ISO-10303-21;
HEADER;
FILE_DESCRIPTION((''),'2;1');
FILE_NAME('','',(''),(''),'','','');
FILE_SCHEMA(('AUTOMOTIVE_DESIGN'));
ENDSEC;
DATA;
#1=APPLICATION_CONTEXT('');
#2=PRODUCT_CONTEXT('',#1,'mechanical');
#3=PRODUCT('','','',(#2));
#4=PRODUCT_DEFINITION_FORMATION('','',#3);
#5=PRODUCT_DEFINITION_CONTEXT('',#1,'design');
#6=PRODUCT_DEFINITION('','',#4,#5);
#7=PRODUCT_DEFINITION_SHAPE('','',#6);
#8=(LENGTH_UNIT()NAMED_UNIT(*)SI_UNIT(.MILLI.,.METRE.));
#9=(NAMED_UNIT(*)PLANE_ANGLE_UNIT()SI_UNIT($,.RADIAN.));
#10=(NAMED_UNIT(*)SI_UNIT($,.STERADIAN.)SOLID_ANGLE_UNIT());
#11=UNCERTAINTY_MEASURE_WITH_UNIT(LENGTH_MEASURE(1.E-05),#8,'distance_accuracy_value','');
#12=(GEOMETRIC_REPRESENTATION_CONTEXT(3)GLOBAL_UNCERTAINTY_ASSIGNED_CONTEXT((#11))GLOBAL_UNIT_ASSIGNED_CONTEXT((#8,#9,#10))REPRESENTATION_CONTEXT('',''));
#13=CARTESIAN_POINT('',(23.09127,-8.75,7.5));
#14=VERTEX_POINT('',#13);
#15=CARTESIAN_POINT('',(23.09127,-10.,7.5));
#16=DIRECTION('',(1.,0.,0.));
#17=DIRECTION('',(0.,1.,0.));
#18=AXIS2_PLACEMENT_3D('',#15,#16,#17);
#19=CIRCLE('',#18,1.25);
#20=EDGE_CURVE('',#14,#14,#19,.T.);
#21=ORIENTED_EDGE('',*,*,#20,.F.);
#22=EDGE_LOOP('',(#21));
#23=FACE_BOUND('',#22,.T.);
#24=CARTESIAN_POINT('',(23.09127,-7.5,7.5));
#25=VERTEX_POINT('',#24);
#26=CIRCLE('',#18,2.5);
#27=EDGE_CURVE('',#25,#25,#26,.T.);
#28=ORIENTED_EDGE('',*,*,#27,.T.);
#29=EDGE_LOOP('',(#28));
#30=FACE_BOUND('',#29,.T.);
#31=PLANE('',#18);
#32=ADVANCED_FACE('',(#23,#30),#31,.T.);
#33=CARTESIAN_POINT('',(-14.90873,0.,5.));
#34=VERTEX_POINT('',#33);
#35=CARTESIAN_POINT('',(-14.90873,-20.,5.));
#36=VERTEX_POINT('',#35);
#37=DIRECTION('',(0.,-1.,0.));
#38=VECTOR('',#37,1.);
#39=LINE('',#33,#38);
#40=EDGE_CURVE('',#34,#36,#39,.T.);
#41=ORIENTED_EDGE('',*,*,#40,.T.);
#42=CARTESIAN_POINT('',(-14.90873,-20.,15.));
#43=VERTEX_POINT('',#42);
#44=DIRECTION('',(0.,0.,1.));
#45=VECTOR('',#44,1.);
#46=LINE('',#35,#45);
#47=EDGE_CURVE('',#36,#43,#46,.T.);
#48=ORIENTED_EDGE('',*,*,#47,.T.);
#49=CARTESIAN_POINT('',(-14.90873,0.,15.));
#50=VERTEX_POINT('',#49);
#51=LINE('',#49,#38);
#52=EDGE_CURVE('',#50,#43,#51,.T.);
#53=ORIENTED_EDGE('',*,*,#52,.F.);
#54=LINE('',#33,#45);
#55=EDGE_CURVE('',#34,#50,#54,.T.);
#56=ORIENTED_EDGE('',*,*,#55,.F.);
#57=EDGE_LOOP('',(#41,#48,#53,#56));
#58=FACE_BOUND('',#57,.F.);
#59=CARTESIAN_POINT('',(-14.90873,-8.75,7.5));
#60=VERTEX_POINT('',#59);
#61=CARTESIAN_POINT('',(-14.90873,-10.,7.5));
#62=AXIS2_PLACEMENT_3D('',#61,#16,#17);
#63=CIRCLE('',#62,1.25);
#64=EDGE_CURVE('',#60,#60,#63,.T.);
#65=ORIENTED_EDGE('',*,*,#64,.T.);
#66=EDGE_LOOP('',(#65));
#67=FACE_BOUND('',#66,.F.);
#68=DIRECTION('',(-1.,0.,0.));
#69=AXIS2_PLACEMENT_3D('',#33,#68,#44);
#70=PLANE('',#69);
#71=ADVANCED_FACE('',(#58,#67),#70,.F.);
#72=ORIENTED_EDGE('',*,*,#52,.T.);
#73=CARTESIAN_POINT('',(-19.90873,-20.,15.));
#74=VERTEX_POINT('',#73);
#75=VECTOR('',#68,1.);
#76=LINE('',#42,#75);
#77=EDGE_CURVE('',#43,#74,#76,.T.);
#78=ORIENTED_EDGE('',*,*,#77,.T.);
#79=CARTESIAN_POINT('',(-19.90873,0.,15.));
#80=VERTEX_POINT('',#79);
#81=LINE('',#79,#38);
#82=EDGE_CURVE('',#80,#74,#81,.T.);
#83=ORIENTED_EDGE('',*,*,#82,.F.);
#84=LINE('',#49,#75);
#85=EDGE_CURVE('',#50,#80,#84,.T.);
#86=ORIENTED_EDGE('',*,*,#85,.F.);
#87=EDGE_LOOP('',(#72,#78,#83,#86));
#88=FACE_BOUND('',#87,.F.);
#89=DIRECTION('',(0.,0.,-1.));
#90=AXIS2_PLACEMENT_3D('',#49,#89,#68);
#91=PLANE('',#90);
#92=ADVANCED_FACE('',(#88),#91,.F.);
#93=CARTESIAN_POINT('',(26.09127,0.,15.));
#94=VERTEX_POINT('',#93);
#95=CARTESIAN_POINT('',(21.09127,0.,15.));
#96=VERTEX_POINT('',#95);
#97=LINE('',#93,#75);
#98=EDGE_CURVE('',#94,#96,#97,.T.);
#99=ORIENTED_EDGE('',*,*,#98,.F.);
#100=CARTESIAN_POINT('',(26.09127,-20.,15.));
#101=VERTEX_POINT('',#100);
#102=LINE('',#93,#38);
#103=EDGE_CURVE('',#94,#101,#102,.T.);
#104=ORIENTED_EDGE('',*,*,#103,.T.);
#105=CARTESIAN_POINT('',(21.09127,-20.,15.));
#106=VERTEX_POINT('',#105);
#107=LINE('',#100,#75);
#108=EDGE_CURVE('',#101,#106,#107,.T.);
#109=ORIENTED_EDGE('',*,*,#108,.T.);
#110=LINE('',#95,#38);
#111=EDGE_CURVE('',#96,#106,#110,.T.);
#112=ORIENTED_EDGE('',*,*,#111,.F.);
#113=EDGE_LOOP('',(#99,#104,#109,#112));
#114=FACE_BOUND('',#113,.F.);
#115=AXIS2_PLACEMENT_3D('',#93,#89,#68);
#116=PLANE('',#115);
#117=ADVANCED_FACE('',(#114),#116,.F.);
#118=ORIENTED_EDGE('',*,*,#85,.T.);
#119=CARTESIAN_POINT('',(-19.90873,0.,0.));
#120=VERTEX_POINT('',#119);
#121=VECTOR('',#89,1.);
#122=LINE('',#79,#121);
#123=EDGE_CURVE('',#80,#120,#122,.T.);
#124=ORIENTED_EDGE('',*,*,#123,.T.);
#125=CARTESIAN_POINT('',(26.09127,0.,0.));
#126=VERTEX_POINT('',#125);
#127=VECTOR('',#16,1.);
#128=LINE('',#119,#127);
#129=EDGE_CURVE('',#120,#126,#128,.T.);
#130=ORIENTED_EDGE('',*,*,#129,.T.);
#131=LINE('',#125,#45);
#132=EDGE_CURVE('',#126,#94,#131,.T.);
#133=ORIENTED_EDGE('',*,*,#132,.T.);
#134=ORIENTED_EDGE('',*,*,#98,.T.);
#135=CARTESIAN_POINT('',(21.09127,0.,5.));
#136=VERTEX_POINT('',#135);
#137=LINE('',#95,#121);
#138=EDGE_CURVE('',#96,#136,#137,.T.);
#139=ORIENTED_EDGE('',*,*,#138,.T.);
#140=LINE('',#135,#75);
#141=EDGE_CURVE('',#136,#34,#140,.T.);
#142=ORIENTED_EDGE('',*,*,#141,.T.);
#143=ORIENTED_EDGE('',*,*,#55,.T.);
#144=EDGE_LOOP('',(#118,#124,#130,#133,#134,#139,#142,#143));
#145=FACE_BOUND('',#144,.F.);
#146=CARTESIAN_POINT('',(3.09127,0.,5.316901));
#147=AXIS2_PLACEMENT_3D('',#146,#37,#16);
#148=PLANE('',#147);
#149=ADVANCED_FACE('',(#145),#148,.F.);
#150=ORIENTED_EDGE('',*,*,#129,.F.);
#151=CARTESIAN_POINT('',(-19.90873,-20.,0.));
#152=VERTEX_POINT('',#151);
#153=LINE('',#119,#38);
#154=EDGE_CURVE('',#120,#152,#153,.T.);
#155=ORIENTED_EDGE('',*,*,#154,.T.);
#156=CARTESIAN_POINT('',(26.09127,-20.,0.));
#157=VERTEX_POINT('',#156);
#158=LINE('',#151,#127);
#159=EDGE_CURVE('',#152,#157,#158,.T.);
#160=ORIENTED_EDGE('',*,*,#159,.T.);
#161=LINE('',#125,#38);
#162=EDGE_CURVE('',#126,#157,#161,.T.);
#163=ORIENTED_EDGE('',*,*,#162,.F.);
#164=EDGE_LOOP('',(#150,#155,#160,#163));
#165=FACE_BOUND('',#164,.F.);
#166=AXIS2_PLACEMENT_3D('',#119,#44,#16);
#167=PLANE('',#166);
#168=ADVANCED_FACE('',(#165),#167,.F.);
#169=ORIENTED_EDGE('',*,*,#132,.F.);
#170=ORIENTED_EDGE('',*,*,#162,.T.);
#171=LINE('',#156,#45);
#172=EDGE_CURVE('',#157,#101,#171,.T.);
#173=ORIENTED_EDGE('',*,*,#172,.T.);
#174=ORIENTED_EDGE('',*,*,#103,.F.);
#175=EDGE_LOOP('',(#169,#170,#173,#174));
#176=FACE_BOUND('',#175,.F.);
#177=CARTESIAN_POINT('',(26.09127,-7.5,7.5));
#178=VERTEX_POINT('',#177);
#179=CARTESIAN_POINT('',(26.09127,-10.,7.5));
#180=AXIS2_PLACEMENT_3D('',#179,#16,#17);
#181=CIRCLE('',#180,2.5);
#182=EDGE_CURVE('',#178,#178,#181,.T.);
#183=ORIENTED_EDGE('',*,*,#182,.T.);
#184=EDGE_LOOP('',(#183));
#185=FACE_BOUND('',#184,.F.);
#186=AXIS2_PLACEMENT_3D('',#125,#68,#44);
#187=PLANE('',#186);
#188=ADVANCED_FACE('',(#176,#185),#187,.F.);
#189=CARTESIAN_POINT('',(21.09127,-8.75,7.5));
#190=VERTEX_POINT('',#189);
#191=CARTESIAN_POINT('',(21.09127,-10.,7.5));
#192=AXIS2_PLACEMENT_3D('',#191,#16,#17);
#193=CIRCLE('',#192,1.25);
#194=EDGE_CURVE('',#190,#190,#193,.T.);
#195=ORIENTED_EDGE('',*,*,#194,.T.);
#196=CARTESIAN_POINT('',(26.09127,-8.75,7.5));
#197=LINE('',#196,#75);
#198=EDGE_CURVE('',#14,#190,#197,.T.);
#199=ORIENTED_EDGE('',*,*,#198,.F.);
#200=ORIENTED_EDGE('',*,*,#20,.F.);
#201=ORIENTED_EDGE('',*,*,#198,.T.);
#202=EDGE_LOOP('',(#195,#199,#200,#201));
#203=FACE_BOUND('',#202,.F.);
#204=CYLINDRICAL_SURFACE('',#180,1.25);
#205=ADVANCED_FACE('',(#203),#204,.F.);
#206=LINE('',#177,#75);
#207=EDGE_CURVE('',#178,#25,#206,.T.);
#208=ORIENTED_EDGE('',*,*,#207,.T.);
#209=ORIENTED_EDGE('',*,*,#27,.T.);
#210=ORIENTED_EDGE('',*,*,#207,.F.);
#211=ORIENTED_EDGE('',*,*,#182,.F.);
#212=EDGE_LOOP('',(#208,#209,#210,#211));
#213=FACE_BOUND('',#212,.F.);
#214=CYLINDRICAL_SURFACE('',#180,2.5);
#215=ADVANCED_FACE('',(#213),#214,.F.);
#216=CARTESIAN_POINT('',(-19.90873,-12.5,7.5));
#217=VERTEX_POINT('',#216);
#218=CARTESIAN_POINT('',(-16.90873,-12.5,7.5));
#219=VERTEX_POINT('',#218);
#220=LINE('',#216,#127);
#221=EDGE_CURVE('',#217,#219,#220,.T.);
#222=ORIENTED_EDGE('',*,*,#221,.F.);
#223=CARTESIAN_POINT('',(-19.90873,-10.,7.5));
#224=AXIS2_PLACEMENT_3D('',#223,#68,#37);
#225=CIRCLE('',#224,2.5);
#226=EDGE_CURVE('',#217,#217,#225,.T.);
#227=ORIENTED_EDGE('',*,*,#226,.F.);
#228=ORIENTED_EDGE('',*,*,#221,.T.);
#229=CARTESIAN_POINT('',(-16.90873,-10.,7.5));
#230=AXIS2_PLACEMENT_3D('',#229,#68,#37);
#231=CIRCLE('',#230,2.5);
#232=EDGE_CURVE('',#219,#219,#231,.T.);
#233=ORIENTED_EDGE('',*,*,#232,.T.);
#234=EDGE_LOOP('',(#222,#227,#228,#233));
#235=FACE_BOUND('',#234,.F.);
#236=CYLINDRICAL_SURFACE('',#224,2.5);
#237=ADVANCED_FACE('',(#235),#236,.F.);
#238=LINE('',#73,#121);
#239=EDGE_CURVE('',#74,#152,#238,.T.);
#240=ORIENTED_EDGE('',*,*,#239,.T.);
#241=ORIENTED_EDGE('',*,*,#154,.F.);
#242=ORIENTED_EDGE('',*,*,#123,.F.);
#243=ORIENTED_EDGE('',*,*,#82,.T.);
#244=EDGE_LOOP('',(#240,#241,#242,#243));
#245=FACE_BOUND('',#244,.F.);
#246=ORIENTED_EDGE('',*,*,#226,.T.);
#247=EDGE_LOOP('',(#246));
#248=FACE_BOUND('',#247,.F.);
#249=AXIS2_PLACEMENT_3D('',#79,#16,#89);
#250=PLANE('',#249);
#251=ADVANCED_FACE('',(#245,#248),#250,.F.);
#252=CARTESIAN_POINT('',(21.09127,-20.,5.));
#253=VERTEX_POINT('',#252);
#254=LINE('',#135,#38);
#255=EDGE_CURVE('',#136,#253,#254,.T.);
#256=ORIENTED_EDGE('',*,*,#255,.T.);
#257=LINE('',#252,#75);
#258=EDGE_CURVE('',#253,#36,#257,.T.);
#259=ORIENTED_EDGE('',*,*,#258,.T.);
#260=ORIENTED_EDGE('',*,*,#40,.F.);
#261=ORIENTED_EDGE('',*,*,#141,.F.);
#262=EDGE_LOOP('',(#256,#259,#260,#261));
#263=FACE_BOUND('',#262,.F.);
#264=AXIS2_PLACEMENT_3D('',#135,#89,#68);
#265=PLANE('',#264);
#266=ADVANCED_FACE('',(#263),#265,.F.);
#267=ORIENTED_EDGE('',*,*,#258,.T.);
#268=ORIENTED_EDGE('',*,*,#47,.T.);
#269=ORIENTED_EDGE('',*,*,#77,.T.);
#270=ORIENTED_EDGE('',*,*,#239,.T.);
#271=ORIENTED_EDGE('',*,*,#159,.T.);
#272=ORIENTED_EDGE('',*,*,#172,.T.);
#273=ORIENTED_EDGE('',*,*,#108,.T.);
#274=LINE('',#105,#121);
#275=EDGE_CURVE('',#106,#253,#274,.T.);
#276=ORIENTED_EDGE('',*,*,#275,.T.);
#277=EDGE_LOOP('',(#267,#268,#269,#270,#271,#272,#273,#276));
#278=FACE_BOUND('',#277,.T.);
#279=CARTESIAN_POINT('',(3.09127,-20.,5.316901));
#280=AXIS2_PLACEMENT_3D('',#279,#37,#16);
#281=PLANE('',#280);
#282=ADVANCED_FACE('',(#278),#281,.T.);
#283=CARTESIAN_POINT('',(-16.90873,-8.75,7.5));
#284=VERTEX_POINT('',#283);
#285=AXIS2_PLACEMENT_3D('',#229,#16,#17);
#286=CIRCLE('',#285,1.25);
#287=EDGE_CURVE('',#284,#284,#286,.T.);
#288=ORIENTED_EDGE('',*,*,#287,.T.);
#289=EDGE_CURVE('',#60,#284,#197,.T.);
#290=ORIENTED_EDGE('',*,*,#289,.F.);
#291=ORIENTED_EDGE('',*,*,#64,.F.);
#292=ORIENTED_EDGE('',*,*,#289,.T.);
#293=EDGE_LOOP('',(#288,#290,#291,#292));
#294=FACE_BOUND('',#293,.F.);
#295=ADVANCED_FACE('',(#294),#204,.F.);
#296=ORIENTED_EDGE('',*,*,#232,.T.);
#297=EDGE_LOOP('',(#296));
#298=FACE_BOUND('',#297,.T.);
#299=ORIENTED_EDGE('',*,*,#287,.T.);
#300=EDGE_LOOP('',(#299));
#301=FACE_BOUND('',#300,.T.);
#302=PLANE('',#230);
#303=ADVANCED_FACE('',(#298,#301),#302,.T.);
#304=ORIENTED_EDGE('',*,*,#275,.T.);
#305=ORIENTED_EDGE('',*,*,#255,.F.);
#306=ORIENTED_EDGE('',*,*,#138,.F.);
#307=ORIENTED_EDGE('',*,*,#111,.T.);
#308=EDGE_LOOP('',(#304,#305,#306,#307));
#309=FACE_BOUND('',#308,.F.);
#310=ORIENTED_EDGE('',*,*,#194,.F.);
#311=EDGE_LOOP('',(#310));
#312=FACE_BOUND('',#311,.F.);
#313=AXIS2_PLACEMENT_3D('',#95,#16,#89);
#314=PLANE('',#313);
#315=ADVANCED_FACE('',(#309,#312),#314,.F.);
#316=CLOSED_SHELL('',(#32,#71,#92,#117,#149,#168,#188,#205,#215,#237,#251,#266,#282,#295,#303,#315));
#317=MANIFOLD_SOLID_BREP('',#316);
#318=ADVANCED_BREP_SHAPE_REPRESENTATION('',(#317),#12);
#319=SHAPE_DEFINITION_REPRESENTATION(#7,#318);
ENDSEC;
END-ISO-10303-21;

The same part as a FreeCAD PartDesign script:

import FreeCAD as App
import Part
import Sketcher
from FreeCAD import Vector

doc = App.newDocument("Part")
body = doc.addObject("PartDesign::Body", "Body")

# Sketch on XZ plane
sketch1 = body.newObject("Sketcher::SketchObject", "Sketch")
sketch1.AttachmentSupport = (doc.getObject("XZ_Plane"), [""])
sketch1.MapMode = "FlatFace"
sketch1.addGeometry([
    Part.LineSegment(Vector(-19.90873, 15, 0), Vector(-19.90873, 0, 0)),  # 0
    Part.LineSegment(Vector(-19.90873, 0, 0), Vector(26.09127, 0, 0)),  # 1
    Part.LineSegment(Vector(26.09127, 0, 0), Vector(26.09127, 15, 0)),  # 2
    Part.LineSegment(Vector(26.09127, 15, 0), Vector(21.09127, 15, 0)),  # 3
    Part.LineSegment(Vector(21.09127, 15, 0), Vector(21.09127, 5, 0)),  # 4
    Part.LineSegment(Vector(21.09127, 5, 0), Vector(-14.90873, 5, 0)),  # 5
    Part.LineSegment(Vector(-14.90873, 5, 0), Vector(-14.90873, 15, 0)),  # 6
    Part.LineSegment(Vector(-14.90873, 15, 0), Vector(-19.90873, 15, 0)),  # 7
], False)
sketch1.addConstraint([
    Sketcher.Constraint("Coincident", 0, 2, 1, 1),
    Sketcher.Constraint("Coincident", 1, 2, 2, 1),
    Sketcher.Constraint("Coincident", 2, 2, 3, 1),
    Sketcher.Constraint("Coincident", 3, 2, 4, 1),
    Sketcher.Constraint("Coincident", 4, 2, 5, 1),
    Sketcher.Constraint("Coincident", 5, 2, 6, 1),
    Sketcher.Constraint("Coincident", 6, 2, 7, 1),
    Sketcher.Constraint("Coincident", 7, 2, 0, 1),
    Sketcher.Constraint("Vertical", 0),
    Sketcher.Constraint("Horizontal", 1),
    Sketcher.Constraint("Vertical", 2),
    Sketcher.Constraint("Horizontal", 3),
    Sketcher.Constraint("Vertical", 4),
    Sketcher.Constraint("Horizontal", 5),
    Sketcher.Constraint("Vertical", 6),
    Sketcher.Constraint("Horizontal", 7),
    Sketcher.Constraint("PointOnObject", 0, 2, -1),
    Sketcher.Constraint("Horizontal", 3, 2, 6, 2),
    Sketcher.Constraint("Equal", 3, 7),
    Sketcher.Constraint("DistanceX", 1, 1, 1, 2, 46.0),
    Sketcher.Constraint("DistanceX", 3, 2, 3, 1, 5.0),
    Sketcher.Constraint("DistanceY", 0, 2, 0, 1, 15.0),
    Sketcher.Constraint("DistanceY", 4, 2, 4, 1, 10.0),
    Sketcher.Constraint("DistanceX", 0, 2, -1, 1, 19.90873),
])
pad1 = body.newObject("PartDesign::Pad", "Pad")
pad1.Profile = sketch1
pad1.Length = 20

# Sketch on YZ plane
sketch2 = body.newObject("Sketcher::SketchObject", "Sketch001")
sketch2.AttachmentSupport = (doc.getObject("YZ_Plane"), [""])
sketch2.MapMode = "FlatFace"
sketch2.AttachmentOffset = App.Placement(Vector(0, 0, 26.09127), App.Rotation())
sketch2.addGeometry(Part.Circle(Vector(-10, 7.5, 0), Vector(0, 0, 1), 1.25), False)
sketch2.addConstraint([
    Sketcher.Constraint("Diameter", 0, 2.5),
    Sketcher.Constraint("DistanceX", 0, 3, -1, 1, 10.0),
    Sketcher.Constraint("DistanceY", -1, 1, 0, 3, 7.5),
])
pocket1 = body.newObject("PartDesign::Pocket", "Pocket")
pocket1.Profile = sketch2
pocket1.Type = "ThroughAll"

# Sketch on YZ plane
sketch3 = body.newObject("Sketcher::SketchObject", "Sketch002")
sketch3.AttachmentSupport = (doc.getObject("YZ_Plane"), [""])
sketch3.MapMode = "FlatFace"
sketch3.AttachmentOffset = App.Placement(Vector(0, 0, -19.90873), App.Rotation())
sketch3.addGeometry(Part.Circle(Vector(-10, 7.5, 0), Vector(0, 0, 1), 2.5), False)
sketch3.addConstraint([
    Sketcher.Constraint("Diameter", 0, 5.0),
    Sketcher.Constraint("DistanceX", 0, 3, -1, 1, 10.0),
    Sketcher.Constraint("DistanceY", -1, 1, 0, 3, 7.5),
])
pocket2 = body.newObject("PartDesign::Pocket", "Pocket001")
pocket2.Profile = sketch3
pocket2.Length = 3
pocket2.Reversed = True

# Sketch on YZ plane
sketch4 = body.newObject("Sketcher::SketchObject", "Sketch003")
sketch4.AttachmentSupport = (doc.getObject("YZ_Plane"), [""])
sketch4.MapMode = "FlatFace"
sketch4.AttachmentOffset = App.Placement(Vector(0, 0, 26.09127), App.Rotation())
sketch4.addGeometry(Part.Circle(Vector(-10, 7.5, 0), Vector(0, 0, 1), 2.5), False)
sketch4.addConstraint([
    Sketcher.Constraint("Diameter", 0, 5.0),
    Sketcher.Constraint("DistanceX", 0, 3, -1, 1, 10.0),
    Sketcher.Constraint("DistanceY", -1, 1, 0, 3, 7.5),
])
pocket3 = body.newObject("PartDesign::Pocket", "Pocket002")
pocket3.Profile = sketch4
pocket3.Length = 3

doc.recompute()
